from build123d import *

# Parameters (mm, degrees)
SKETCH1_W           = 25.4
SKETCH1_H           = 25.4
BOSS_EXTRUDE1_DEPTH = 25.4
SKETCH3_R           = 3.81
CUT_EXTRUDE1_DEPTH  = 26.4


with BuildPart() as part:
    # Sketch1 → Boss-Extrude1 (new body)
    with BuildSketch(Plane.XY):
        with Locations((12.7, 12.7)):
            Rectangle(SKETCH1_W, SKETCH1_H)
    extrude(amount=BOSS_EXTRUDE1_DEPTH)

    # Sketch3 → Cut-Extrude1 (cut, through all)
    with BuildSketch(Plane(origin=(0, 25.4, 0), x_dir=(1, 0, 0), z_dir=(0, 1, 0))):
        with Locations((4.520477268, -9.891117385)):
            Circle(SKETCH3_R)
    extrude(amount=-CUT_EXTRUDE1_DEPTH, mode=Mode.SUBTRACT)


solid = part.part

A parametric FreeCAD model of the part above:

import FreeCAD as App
import Part
import Sketcher

V = App.Vector
Q = App.Units.Quantity

doc = App.newDocument("Part")
params = doc.addObject("Spreadsheet::Sheet", "Params")
for row, (alias, value) in enumerate([
    ("sketch1_width", "1 in"),
    ("pad1_length", "1 in"),
    ("sketch2_diameter", "0.3 in"),
], start=1):
    params.set(f"A{row}", alias)
    params.set(f"B{row}", "=" + value)
    params.setAlias(f"B{row}", alias)

body = doc.addObject("PartDesign::Body", "Body")

sketch1 = doc.addObject("Sketcher::SketchObject", "Sketch")
body.addObject(sketch1)
sketch1.AttachmentSupport = (doc.XY_Plane, [""])
sketch1.MapMode = "FlatFace"
sketch1.addGeometry([
    Part.LineSegment(V(0, 25, 0), V(0, 0, 0)),
    Part.LineSegment(V(0, 0, 0), V(25, 0, 0)),
    Part.LineSegment(V(25, 0, 0), V(25, 25, 0)),
    Part.LineSegment(V(25, 25, 0), V(0, 25, 0)),
], False)
sketch1.addConstraint([
    Sketcher.Constraint("Coincident", 0, 2, 1, 1),
    Sketcher.Constraint("Coincident", 1, 2, 2, 1),
    Sketcher.Constraint("Coincident", 2, 2, 3, 1),
    Sketcher.Constraint("Coincident", 3, 2, 0, 1),
    Sketcher.Constraint("Vertical", 0),
    Sketcher.Constraint("Horizontal", 1),
    Sketcher.Constraint("Vertical", 2),
    Sketcher.Constraint("Horizontal", 3),
    Sketcher.Constraint("Coincident", 0, 2, -1, 1),
    Sketcher.Constraint("Equal", 3, 0),
    Sketcher.Constraint("DistanceX", 1, 1, 1, 2, Q("1 in")),
])
sketch1.setExpression("Constraints[10]", "Params.sketch1_width")
pad1 = doc.addObject("PartDesign::Pad", "Pad")
body.addObject(pad1)
pad1.Profile = sketch1
pad1.setExpression("Length", "Params.pad1_length")

sketch2 = doc.addObject("Sketcher::SketchObject", "Sketch001")
body.addObject(sketch2)
sketch2.AttachmentSupport = (doc.XZ_Plane, [""])
sketch2.MapMode = "FlatFace"
sketch2.AttachmentOffset = App.Placement(V(0, 0, -1 * 25.4), App.Rotation())
sketch2.addGeometry(Part.Circle(V(4.5, 9.9, 0), V(0, 0, 1), 3.8), False)
sketch2.addConstraint([
    Sketcher.Constraint("Diameter", 0, Q("0.3 in")),
    Sketcher.Constraint("DistanceX", -1, 1, 0, 3, Q("4.520477 mm")),
    Sketcher.Constraint("DistanceY", -1, 1, 0, 3, Q("9.891117 mm")),
])
sketch2.setExpression("Constraints[0]", "Params.sketch2_diameter")
pocket1 = doc.addObject("PartDesign::Pocket", "Pocket")
body.addObject(pocket1)
pocket1.Profile = sketch2
pocket1.Type = "ThroughAll"
pocket1.Reversed = True

doc.recompute()
